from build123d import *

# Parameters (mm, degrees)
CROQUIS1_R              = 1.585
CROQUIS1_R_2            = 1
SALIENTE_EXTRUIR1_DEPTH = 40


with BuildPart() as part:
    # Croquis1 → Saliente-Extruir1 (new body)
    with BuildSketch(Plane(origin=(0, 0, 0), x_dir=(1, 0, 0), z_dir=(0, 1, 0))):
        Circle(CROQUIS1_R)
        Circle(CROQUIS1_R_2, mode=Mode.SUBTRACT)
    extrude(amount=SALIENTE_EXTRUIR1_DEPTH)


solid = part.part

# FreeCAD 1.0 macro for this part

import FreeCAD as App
import Part
import Sketcher

V = App.Vector
Q = App.Units.Quantity

doc = App.newDocument("Part")
body = doc.addObject("PartDesign::Body", "Body")

sketch1 = doc.addObject("Sketcher::SketchObject", "Sketch")
body.addObject(sketch1)
sketch1.AttachmentSupport = (doc.XZ_Plane, [""])
sketch1.MapMode = "FlatFace"
sketch1.addGeometry([
    Part.Circle(V(0, 0, 0), V(0, 0, 1), 1.6),
    Part.Circle(V(0, 0, 0), V(0, 0, 1), 1),
], False)
sketch1.addConstraint([
    Sketcher.Constraint("Coincident", 0, 3, -1, 1),
    Sketcher.Constraint("Coincident", 1, 3, -1, 1),
    Sketcher.Constraint("Diameter", 1, Q("2 mm")),
    Sketcher.Constraint("Diameter", 0, Q("3.17 mm")),
])
pad1 = doc.addObject("PartDesign::Pad", "Pad")
body.addObject(pad1)
pad1.Profile = sketch1
pad1.Length = 40
pad1.Reversed = True

doc.recompute()
